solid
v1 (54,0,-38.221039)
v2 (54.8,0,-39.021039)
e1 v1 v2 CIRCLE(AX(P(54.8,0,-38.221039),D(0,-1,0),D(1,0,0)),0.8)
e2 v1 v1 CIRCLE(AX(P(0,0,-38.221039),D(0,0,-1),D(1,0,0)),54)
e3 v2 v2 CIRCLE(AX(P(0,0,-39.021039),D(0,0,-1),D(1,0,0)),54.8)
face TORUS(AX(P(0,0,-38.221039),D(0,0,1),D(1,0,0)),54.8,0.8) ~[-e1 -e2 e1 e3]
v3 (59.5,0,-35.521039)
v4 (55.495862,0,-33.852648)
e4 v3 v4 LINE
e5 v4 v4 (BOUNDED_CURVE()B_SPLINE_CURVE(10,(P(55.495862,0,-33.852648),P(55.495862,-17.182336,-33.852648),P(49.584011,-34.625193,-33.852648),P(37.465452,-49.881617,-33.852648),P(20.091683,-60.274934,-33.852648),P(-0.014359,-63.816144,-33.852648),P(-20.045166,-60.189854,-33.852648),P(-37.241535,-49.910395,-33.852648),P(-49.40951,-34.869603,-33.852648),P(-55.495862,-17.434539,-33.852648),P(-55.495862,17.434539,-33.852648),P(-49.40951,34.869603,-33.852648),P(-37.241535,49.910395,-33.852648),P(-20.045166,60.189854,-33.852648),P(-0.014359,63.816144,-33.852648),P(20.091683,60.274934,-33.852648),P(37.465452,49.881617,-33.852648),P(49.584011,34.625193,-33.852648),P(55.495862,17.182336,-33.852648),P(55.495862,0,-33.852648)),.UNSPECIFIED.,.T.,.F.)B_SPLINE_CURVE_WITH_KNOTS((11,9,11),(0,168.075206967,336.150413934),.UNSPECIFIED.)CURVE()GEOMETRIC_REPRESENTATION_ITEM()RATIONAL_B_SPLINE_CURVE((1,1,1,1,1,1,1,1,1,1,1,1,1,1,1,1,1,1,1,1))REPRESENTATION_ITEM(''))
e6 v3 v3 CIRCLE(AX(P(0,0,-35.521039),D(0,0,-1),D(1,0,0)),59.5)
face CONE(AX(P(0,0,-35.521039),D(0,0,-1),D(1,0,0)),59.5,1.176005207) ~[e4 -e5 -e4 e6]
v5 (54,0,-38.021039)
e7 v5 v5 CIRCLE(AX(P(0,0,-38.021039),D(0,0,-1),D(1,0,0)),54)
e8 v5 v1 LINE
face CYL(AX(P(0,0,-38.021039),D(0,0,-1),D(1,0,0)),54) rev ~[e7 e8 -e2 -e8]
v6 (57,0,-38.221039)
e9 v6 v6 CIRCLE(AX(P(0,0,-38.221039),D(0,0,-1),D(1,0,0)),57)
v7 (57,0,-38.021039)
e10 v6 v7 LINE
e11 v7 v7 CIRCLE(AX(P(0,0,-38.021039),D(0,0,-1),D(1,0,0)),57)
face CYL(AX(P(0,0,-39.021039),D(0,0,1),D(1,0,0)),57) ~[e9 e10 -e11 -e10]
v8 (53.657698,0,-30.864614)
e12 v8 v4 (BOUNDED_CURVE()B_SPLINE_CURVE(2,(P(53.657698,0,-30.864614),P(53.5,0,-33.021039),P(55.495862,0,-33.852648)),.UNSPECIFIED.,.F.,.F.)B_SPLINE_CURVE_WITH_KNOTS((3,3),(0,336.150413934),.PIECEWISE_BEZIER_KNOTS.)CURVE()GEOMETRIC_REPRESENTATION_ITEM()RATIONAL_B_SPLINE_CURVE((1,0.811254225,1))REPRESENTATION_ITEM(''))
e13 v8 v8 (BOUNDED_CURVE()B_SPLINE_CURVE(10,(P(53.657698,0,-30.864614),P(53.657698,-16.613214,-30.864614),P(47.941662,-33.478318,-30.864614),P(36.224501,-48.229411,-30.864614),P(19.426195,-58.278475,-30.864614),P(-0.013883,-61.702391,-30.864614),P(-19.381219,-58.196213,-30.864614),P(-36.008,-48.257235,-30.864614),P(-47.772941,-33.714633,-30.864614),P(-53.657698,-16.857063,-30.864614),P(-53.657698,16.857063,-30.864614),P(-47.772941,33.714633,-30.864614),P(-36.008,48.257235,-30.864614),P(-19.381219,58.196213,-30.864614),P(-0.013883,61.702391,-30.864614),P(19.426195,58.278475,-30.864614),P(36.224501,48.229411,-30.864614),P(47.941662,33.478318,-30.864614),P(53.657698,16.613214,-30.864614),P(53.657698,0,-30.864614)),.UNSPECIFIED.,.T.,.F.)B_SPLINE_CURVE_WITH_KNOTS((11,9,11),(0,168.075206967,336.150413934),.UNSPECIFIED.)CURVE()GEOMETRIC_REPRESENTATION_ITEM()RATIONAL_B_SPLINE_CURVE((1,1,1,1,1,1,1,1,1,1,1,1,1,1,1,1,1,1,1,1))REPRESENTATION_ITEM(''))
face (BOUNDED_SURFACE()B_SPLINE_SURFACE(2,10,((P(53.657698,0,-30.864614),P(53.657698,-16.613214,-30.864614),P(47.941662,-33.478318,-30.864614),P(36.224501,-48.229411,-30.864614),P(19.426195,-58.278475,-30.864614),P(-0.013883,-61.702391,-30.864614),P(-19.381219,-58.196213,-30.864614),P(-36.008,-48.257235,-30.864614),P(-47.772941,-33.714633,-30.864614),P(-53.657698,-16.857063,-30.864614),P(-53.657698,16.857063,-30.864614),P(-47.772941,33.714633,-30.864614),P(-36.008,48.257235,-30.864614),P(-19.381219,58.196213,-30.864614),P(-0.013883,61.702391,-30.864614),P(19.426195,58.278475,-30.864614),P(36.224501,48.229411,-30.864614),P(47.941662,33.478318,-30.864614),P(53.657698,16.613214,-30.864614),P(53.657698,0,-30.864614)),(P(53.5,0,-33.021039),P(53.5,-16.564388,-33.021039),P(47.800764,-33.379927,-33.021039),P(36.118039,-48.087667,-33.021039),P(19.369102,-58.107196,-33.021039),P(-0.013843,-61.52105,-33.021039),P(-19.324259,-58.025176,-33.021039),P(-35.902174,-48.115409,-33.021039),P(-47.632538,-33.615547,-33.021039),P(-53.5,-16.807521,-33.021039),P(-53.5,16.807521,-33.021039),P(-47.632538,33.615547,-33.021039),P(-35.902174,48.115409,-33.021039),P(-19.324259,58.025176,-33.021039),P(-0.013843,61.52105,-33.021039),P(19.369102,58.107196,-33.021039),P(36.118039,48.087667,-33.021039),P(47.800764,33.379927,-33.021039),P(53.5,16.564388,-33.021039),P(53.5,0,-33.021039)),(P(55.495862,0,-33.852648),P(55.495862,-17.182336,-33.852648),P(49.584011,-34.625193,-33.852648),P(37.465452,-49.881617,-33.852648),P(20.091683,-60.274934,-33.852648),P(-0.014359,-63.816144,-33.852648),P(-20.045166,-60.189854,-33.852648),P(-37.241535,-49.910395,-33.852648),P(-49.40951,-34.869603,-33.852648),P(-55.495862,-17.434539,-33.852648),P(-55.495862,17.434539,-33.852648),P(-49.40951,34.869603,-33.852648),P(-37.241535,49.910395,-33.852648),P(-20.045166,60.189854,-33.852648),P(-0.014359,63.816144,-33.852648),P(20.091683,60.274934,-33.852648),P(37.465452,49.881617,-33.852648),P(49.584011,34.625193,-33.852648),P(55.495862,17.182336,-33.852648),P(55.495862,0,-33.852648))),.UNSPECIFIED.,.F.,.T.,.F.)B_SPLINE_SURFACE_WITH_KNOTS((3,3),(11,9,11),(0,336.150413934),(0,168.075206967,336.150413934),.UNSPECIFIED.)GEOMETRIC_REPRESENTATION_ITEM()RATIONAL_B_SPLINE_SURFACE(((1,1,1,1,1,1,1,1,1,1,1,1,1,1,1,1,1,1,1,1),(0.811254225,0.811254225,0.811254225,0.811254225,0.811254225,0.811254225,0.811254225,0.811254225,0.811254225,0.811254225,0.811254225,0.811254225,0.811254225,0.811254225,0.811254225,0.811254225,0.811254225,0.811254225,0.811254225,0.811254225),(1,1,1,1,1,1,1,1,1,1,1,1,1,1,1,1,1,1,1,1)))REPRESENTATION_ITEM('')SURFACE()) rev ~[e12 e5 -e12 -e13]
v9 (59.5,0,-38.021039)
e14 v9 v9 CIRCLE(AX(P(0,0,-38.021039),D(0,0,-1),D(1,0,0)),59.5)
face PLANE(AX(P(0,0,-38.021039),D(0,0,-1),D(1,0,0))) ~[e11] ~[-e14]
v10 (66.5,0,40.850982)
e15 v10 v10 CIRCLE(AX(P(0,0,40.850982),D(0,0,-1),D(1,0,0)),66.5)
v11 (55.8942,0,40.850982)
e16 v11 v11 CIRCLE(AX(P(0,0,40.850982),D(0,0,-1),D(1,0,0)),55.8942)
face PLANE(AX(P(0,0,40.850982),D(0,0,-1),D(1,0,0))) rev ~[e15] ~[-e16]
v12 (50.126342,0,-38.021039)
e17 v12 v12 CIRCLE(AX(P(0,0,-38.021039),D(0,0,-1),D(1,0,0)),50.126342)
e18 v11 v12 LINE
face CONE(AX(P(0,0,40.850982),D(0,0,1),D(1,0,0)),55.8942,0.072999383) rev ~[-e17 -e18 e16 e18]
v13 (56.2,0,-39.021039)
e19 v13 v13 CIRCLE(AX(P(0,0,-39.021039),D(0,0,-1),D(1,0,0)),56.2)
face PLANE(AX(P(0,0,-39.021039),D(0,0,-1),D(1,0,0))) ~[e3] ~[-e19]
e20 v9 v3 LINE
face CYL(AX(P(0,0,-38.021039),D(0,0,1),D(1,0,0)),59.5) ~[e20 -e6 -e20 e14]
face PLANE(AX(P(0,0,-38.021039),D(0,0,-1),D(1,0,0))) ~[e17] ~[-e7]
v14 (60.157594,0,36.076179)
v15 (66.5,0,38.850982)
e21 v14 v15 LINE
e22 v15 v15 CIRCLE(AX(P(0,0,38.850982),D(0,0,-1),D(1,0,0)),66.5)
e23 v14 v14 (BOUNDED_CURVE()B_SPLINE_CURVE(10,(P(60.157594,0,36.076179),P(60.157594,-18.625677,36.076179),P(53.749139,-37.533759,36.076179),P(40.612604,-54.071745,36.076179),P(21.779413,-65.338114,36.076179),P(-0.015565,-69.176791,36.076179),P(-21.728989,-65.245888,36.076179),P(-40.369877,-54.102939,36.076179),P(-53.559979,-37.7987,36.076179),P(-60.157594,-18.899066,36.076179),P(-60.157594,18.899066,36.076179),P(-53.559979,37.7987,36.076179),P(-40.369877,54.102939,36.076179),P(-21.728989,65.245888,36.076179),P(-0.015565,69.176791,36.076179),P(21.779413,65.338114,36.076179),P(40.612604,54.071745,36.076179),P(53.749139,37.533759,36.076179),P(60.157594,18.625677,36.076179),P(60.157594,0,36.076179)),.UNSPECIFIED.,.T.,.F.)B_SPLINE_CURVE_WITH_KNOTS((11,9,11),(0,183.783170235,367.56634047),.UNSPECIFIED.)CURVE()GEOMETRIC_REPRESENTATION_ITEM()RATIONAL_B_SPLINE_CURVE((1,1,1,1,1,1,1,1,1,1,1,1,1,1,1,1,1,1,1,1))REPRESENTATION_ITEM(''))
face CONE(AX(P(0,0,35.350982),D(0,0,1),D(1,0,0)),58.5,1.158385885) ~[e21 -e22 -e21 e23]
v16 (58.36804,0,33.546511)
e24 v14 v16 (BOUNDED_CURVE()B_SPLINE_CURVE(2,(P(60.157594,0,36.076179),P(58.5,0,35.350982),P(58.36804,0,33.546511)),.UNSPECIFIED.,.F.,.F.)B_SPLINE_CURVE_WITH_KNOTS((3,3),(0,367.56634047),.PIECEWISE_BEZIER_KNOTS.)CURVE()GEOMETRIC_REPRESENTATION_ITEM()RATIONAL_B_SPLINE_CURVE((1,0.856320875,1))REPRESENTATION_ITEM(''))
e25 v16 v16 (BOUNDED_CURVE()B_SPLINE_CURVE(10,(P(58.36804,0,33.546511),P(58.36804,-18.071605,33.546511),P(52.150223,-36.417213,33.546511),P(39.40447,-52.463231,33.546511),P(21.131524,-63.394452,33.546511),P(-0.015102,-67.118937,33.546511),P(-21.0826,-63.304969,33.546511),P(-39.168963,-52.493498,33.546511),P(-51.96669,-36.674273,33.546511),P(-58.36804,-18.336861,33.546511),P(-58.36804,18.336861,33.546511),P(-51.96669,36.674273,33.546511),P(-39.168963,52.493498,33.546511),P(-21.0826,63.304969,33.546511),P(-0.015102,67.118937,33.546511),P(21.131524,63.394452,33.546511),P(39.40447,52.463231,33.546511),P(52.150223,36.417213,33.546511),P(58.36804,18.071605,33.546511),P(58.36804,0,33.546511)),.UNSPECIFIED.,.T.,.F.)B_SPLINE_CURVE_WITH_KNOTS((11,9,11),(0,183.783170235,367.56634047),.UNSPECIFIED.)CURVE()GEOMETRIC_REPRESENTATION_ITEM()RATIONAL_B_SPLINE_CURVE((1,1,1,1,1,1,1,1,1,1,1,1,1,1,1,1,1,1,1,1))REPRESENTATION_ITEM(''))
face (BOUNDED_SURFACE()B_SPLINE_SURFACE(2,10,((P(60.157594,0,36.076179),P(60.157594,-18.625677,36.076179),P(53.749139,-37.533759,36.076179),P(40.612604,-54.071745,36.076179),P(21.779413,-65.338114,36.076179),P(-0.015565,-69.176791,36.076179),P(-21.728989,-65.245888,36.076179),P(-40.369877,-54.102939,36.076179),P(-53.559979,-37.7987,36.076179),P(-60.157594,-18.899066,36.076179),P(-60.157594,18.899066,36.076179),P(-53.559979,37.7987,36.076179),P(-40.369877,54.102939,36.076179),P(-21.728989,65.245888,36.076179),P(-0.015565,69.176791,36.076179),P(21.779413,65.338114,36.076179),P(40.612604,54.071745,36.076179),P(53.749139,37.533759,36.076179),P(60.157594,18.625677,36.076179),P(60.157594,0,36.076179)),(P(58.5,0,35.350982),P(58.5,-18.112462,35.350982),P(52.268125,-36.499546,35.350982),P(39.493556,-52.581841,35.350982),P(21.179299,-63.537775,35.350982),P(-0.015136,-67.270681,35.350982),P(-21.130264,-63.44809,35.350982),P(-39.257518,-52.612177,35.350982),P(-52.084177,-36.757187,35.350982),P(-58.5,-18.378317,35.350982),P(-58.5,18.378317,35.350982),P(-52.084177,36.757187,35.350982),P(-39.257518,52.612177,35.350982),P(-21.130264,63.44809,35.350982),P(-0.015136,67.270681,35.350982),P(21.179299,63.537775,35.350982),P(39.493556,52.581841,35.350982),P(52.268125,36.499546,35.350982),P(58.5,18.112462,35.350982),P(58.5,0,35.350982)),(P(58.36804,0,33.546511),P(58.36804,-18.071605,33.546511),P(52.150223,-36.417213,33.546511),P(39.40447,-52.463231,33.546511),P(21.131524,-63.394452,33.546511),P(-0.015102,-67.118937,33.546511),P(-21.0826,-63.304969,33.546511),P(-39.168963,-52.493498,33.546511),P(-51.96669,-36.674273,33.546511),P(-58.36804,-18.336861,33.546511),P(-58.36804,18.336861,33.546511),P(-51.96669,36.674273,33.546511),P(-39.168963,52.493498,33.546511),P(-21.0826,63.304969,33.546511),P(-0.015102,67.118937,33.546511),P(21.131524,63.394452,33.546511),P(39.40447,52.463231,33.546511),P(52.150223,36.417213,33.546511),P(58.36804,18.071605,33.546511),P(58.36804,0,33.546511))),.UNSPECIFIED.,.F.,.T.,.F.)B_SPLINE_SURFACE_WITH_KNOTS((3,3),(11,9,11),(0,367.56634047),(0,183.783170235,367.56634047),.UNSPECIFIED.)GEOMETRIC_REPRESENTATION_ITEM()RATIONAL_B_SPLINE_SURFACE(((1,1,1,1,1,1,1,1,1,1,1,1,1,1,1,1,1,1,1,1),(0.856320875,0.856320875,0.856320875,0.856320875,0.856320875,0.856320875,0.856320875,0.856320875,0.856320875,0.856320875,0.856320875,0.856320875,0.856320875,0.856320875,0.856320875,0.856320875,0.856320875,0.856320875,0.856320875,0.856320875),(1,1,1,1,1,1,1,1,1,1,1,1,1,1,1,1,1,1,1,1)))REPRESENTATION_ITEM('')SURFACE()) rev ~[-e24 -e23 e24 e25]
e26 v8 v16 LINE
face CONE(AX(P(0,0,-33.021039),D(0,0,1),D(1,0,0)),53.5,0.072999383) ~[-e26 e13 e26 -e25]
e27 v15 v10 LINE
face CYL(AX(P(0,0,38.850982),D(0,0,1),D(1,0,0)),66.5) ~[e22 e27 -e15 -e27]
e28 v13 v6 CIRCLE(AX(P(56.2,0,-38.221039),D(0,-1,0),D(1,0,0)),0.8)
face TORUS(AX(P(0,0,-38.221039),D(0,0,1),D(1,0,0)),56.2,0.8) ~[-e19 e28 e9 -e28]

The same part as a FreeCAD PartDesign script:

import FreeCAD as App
import Part
import Sketcher
from FreeCAD import Vector
Q = App.Units.Quantity


def edges_at(feature, points):
    """Names of the edges that pass closest to the given points."""
    edges = feature.Shape.Edges
    near = lambda p: min(range(len(edges)), key=lambda i: edges[i].distToShape(Part.Vertex(*p))[0])
    return sorted({f"Edge{near(p) + 1}" for p in points})

doc = App.newDocument("Part")
body = doc.addObject("PartDesign::Body", "Body")

# Sketch on XZ plane
sketch1 = doc.addObject("Sketcher::SketchObject", "Sketch")
body.addObject(sketch1)
sketch1.AttachmentSupport = (doc.XZ_Plane, [""])
sketch1.MapMode = "FlatFace"
sketch1.addGeometry(Part.LineSegment(Vector(66.5, 40.850982, 0), Vector(55.8942, 40.850982, 0)), False)
sketch1.addGeometry(Part.LineSegment(Vector(55.8942, 40.850982, 0), Vector(50.126342, -38.021039, 0)), False)
sketch1.addGeometry(Part.LineSegment(Vector(50.126342, -38.021039, 0), Vector(54, -38.021039, 0)), False)
sketch1.addGeometry(Part.LineSegment(Vector(54, -38.021039, 0), Vector(54, -39.021039, 0)), False)
sketch1.addGeometry(Part.LineSegment(Vector(54, -39.021039, 0), Vector(57, -39.021039, 0)), False)
sketch1.addGeometry(Part.LineSegment(Vector(57, -39.021039, 0), Vector(57, -38.021039, 0)), False)
sketch1.addGeometry(Part.LineSegment(Vector(57, -38.021039, 0), Vector(59.5, -38.021039, 0)), False)
sketch1.addGeometry(Part.LineSegment(Vector(59.5, -38.021039, 0), Vector(59.5, -35.521039, 0)), False)
sketch1.addGeometry(Part.LineSegment(Vector(59.5, -35.521039, 0), Vector(53.5, -33.021039, 0)), False)
sketch1.addGeometry(Part.LineSegment(Vector(53.5, -33.021039, 0), Vector(58.5, 35.350982, 0)), False)
sketch1.addGeometry(Part.LineSegment(Vector(58.5, 35.350982, 0), Vector(66.5, 38.850982, 0)), False)
sketch1.addGeometry(Part.LineSegment(Vector(66.5, 38.850982, 0), Vector(66.5, 40.850982, 0)), False)
sketch1.addConstraint(Sketcher.Constraint("Coincident", 0, 2, 1, 1))
sketch1.addConstraint(Sketcher.Constraint("Coincident", 1, 2, 2, 1))
sketch1.addConstraint(Sketcher.Constraint("Coincident", 2, 2, 3, 1))
sketch1.addConstraint(Sketcher.Constraint("Coincident", 3, 2, 4, 1))
sketch1.addConstraint(Sketcher.Constraint("Coincident", 4, 2, 5, 1))
sketch1.addConstraint(Sketcher.Constraint("Coincident", 5, 2, 6, 1))
sketch1.addConstraint(Sketcher.Constraint("Coincident", 6, 2, 7, 1))
sketch1.addConstraint(Sketcher.Constraint("Coincident", 7, 2, 8, 1))
sketch1.addConstraint(Sketcher.Constraint("Coincident", 8, 2, 9, 1))
sketch1.addConstraint(Sketcher.Constraint("Coincident", 9, 2, 10, 1))
sketch1.addConstraint(Sketcher.Constraint("Coincident", 10, 2, 11, 1))
sketch1.addConstraint(Sketcher.Constraint("Coincident", 11, 2, 0, 1))
sketch1.addConstraint(Sketcher.Constraint("Horizontal", 0))
sketch1.addConstraint(Sketcher.Constraint("Horizontal", 2))
sketch1.addConstraint(Sketcher.Constraint("Vertical", 3))
sketch1.addConstraint(Sketcher.Constraint("Horizontal", 4))
sketch1.addConstraint(Sketcher.Constraint("Vertical", 5))
sketch1.addConstraint(Sketcher.Constraint("Horizontal", 6))
sketch1.addConstraint(Sketcher.Constraint("Vertical", 7))
sketch1.addConstraint(Sketcher.Constraint("Vertical", 11))
sketch1.addConstraint(Sketcher.Constraint("Parallel", 1, 9))
sketch1.addConstraint(Sketcher.Constraint("Horizontal", 2, 2, 5, 2))
sketch1.addConstraint(Sketcher.Constraint("Equal", 6, 7))
sketch1.addConstraint(Sketcher.Constraint("DistanceX", 4, 1, 4, 2, Q("3 mm")))
sketch1.addConstraint(Sketcher.Constraint("DistanceY", 3, 2, 3, 1, Q("1 mm")))
sketch1.addConstraint(Sketcher.Constraint("DistanceY", 11, 1, 11, 2, Q("2 mm")))
sketch1.addConstraint(Sketcher.Constraint("DistanceX", 6, 1, 6, 2, Q("2.5 mm")))
sketch1.addConstraint(Sketcher.Constraint("DistanceX", -1, 1, 2, 2, Q("54 mm")))
sketch1.addConstraint(Sketcher.Constraint("DistanceY", 2, 2, 8, 2, Q("5 mm")))
sketch1.addConstraint(Sketcher.Constraint("DistanceX", 8, 2, 7, 2, Q("6 mm")))
sketch1.addConstraint(Sketcher.Constraint("DistanceX", 8, 2, 9, 2, Q("5 mm")))
sketch1.addConstraint(Sketcher.Constraint("DistanceX", 9, 2, 10, 2, Q("8 mm")))
sketch1.addConstraint(Sketcher.Constraint("DistanceY", 9, 2, 0, 2, Q("5.5 mm")))
sketch1.addConstraint(Sketcher.Constraint("DistanceX", 0, 2, 0, 1, Q("10.6058 mm")))
sketch1.addConstraint(Sketcher.Constraint("Distance", 9, Q("68.554601 mm")))
sketch1.addConstraint(Sketcher.Constraint("DistanceY", 1, 2, -1, 1, Q("38.021039 mm")))
revolution = doc.addObject("PartDesign::Revolution", "Revolution")
body.addObject(revolution)
revolution.Profile = sketch1
revolution.ReferenceAxis = (sketch1, ["V_Axis"])
revolution.Angle = 360
doc.recompute()

fillet = doc.addObject("PartDesign::Fillet", "Fillet")
body.addObject(fillet)
fillet.Base = (revolution, edges_at(revolution, [(-54, 0, -39.021), (-57, 0, -39.021)]))
fillet.Radius = 0.8
doc.recompute()

fillet2 = doc.addObject("PartDesign::Fillet", "Fillet001")
body.addObject(fillet2)
fillet2.Base = (fillet, edges_at(fillet, [(-58.5, 0, 35.351), (-53.5, 0, -33.021)]))
fillet2.Radius = 3

doc.recompute()
